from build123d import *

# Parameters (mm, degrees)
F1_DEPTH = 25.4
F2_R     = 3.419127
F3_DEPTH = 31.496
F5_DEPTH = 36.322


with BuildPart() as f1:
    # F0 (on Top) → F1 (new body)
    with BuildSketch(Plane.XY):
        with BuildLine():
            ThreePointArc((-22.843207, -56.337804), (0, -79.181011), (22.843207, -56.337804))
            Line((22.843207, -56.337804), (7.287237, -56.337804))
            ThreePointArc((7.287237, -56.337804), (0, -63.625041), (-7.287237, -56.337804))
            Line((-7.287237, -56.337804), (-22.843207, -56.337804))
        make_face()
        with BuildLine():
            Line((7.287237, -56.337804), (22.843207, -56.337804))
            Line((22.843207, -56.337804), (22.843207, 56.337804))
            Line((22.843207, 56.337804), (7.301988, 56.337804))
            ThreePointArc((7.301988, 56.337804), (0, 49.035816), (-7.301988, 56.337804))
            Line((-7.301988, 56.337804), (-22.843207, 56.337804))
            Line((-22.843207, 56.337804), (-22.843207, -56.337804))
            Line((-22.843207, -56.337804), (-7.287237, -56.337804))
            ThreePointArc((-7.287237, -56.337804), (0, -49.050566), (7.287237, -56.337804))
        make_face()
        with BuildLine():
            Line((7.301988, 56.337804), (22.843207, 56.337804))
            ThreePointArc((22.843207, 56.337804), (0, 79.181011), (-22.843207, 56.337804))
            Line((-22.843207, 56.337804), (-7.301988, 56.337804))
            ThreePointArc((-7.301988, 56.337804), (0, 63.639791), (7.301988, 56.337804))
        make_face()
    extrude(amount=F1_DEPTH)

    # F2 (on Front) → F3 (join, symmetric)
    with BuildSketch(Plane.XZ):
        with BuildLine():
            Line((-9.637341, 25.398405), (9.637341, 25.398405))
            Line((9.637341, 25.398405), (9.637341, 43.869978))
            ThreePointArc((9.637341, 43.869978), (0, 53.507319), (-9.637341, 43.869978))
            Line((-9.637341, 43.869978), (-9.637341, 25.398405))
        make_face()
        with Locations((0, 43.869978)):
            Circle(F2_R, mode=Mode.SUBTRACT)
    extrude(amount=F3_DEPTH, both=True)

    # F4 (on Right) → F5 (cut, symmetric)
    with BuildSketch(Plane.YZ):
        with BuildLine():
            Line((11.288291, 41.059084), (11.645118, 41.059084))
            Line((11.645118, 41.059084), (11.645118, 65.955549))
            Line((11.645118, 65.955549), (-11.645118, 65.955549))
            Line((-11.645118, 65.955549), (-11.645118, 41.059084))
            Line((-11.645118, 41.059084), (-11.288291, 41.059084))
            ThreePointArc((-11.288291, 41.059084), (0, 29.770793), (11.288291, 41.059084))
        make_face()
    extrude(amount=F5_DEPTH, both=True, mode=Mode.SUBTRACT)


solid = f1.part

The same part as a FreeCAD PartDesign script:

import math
import FreeCAD as App
import Part
import Sketcher

V = App.Vector
Q = App.Units.Quantity

doc = App.newDocument("Part")
body = doc.addObject("PartDesign::Body", "Body")

sketch1 = body.newObject("Sketcher::SketchObject", "Sketch")
sketch1.AttachmentSupport = (doc.getObject("XY_Plane"), [""])
sketch1.MapMode = "FlatFace"
sketch1.addGeometry([
    Part.ArcOfCircle(Part.Circle(V(0, -56.337804, 0), V(0, 0, 1), 22.843207), math.radians(180), math.radians(360)),
    Part.LineSegment(V(22.843207, -56.337804, 0), V(22.843207, 56.337804, 0)),
    Part.ArcOfCircle(Part.Circle(V(0, 56.337804, 0), V(0, 0, 1), 22.843207), math.radians(0), math.radians(180)),
    Part.LineSegment(V(-22.843207, 56.337804, 0), V(-22.843207, -56.337804, 0)),
    Part.ArcOfCircle(Part.Circle(V(0, 56.337804, 0), V(0, 0, 1), 7.301988), math.radians(180), math.radians(360)),
    Part.ArcOfCircle(Part.Circle(V(0, 56.337803, 0), V(0, 0, 1), 7.301988), math.radians(0.000008), math.radians(179.999992)),
    Part.ArcOfCircle(Part.Circle(V(0, -56.337804, 0), V(0, 0, 1), 7.287237), math.radians(180), math.radians(360)),
    Part.ArcOfCircle(Part.Circle(V(0, -56.337803, 0), V(0, 0, 1), 7.287237), math.radians(-0.000008), math.radians(180.000008)),
], False)
sketch1.addConstraint([
    Sketcher.Constraint("Tangent", 0, 2, 1, 1),
    Sketcher.Constraint("Tangent", 1, 2, 2, 1),
    Sketcher.Constraint("Tangent", 2, 2, 3, 1),
    Sketcher.Constraint("Tangent", 3, 2, 0, 1),
    Sketcher.Constraint("Tangent", 4, 1, 5, 2),
    Sketcher.Constraint("Coincident", 5, 1, 4, 2),
    Sketcher.Constraint("Tangent", 6, 1, 7, 2),
    Sketcher.Constraint("Coincident", 7, 1, 6, 2),
    Sketcher.Constraint("Vertical", 1),
    Sketcher.Constraint("Vertical", 3),
    Sketcher.Constraint("Coincident", 4, 3, 2, 3),
    Sketcher.Constraint("Coincident", 6, 3, 0, 3),
    Sketcher.Constraint("Symmetric", 0, 3, 2, 3, -1, 1),
    Sketcher.Constraint("Horizontal", 2, 2, 4, 1),
    Sketcher.Constraint("Horizontal", 4, 1, 5, 1),
    Sketcher.Constraint("Horizontal", 3, 2, 6, 1),
    Sketcher.Constraint("Horizontal", 6, 1, 7, 1),
    Sketcher.Constraint("Radius", 0, Q("22.843207 mm")),
    Sketcher.Constraint("Radius", 4, Q("7.301988 mm")),
    Sketcher.Constraint("Radius", 6, Q("7.287237 mm")),
    Sketcher.Constraint("DistanceY", 1, 1, 1, 2, Q("112.675608 mm")),
])
pad1 = body.newObject("PartDesign::Pad", "Pad")
pad1.Profile = sketch1
pad1.Length = Q("1 in")

sketch2 = body.newObject("Sketcher::SketchObject", "Sketch001")
sketch2.AttachmentSupport = (doc.getObject("XZ_Plane"), [""])
sketch2.MapMode = "FlatFace"
sketch2.addGeometry([
    Part.LineSegment(V(-9.637341, 25.398405, 0), V(9.637341, 25.398405, 0)),
    Part.LineSegment(V(9.637341, 25.398405, 0), V(9.637341, 43.869978, 0)),
    Part.ArcOfCircle(Part.Circle(V(0, 43.869978, 0), V(0, 0, 1), 9.637341), math.radians(0), math.radians(180)),
    Part.LineSegment(V(-9.637341, 43.869978, 0), V(-9.637341, 25.398405, 0)),
    Part.Circle(V(0, 43.869978, 0), V(0, 0, 1), 3.419127),
], False)
sketch2.addConstraint([
    Sketcher.Constraint("Coincident", 0, 2, 1, 1),
    Sketcher.Constraint("Tangent", 1, 2, 2, 1),
    Sketcher.Constraint("Tangent", 2, 2, 3, 1),
    Sketcher.Constraint("Coincident", 3, 2, 0, 1),
    Sketcher.Constraint("Horizontal", 0),
    Sketcher.Constraint("Vertical", 1),
    Sketcher.Constraint("Vertical", 3),
    Sketcher.Constraint("Coincident", 4, 3, 2, 3),
    Sketcher.Constraint("PointOnObject", 2, 3, -2),
    Sketcher.Constraint("Radius", 2, Q("9.637341 mm")),
    Sketcher.Constraint("Diameter", 4, Q("6.838254 mm")),
    Sketcher.Constraint("DistanceY", 1, 1, 1, 2, Q("18.471573 mm")),
    Sketcher.Constraint("DistanceY", -1, 1, 2, 3, Q("43.869978 mm")),
])
pad2 = body.newObject("PartDesign::Pad", "Pad001")
pad2.Profile = sketch2
pad2.Length = Q("2.48 in")
pad2.Midplane = True

sketch3 = body.newObject("Sketcher::SketchObject", "Sketch002")
sketch3.AttachmentSupport = (doc.getObject("YZ_Plane"), [""])
sketch3.MapMode = "FlatFace"
sketch3.addGeometry([
    Part.LineSegment(V(11.288291, 41.059084, 0), V(11.645118, 41.059084, 0)),
    Part.LineSegment(V(11.645118, 41.059084, 0), V(11.645118, 65.955549, 0)),
    Part.LineSegment(V(11.645118, 65.955549, 0), V(-11.645118, 65.955549, 0)),
    Part.LineSegment(V(-11.645118, 65.955549, 0), V(-11.645118, 41.059084, 0)),
    Part.LineSegment(V(-11.645118, 41.059084, 0), V(-11.288291, 41.059084, 0)),
    Part.ArcOfCircle(Part.Circle(V(0, 41.059084, 0), V(0, 0, 1), 11.288291), math.radians(180), math.radians(360)),
], False)
sketch3.addConstraint([
    Sketcher.Constraint("Coincident", 0, 2, 1, 1),
    Sketcher.Constraint("Coincident", 1, 2, 2, 1),
    Sketcher.Constraint("Coincident", 2, 2, 3, 1),
    Sketcher.Constraint("Coincident", 3, 2, 4, 1),
    Sketcher.Constraint("Coincident", 4, 2, 5, 1),
    Sketcher.Constraint("Coincident", 5, 2, 0, 1),
    Sketcher.Constraint("Horizontal", 0),
    Sketcher.Constraint("Vertical", 1),
    Sketcher.Constraint("Horizontal", 2),
    Sketcher.Constraint("Vertical", 3),
    Sketcher.Constraint("Horizontal", 4),
    Sketcher.Constraint("Symmetric", 0, 2, 3, 2, -2),
    Sketcher.Constraint("PointOnObject", 5, 3, -2),
    Sketcher.Constraint("Horizontal", 5, 3, 0, 2),
    Sketcher.Constraint("Radius", 5, Q("11.288291 mm")),
    Sketcher.Constraint("DistanceX", 0, 1, 0, 2, Q("0.356827 mm")),
    Sketcher.Constraint("DistanceY", 1, 1, 1, 2, Q("24.896465 mm")),
    Sketcher.Constraint("DistanceY", -1, 1, 1, 2, Q("65.955549 mm")),
])
pocket1 = body.newObject("PartDesign::Pocket", "Pocket")
pocket1.Profile = sketch3
pocket1.Length = Q("2.86 in")
pocket1.Midplane = True

doc.recompute()
